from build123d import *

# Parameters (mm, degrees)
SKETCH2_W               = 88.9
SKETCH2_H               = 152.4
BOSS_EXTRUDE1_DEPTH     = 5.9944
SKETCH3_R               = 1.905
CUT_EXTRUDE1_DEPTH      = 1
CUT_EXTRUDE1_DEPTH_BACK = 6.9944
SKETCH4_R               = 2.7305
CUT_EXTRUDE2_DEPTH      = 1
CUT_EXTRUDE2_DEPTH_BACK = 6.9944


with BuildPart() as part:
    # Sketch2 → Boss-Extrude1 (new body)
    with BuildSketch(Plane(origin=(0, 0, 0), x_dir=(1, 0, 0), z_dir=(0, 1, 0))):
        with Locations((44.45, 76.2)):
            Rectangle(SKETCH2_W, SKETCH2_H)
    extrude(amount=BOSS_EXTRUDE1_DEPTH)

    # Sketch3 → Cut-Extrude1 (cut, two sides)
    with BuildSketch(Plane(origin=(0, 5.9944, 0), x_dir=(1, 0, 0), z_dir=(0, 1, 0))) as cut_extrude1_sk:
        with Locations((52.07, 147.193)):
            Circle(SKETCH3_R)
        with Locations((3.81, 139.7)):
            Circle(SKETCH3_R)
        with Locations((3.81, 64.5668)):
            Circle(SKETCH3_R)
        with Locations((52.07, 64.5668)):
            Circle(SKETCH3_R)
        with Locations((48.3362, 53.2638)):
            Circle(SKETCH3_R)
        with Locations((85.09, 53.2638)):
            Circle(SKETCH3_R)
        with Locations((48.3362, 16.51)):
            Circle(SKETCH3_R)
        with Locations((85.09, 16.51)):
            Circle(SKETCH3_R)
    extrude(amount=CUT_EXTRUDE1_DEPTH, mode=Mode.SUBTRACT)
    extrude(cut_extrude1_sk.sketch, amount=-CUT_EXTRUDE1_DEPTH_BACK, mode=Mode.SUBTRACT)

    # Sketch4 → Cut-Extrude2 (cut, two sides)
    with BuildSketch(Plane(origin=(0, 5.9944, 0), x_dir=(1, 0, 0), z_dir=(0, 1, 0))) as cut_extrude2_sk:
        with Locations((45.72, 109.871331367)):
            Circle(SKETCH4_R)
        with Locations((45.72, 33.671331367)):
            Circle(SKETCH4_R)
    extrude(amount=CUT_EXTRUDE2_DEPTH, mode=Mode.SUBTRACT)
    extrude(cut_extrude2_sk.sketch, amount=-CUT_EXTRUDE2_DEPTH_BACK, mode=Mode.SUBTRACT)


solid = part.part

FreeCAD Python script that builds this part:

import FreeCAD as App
import Part
import Sketcher
Q = App.Units.Quantity


def add_polygon(sketch, points):
    """Adds a closed chain of lines whose ends are joined by coincident constraints."""
    first, n = sketch.GeometryCount, len(points)
    for a, b in zip(points, points[1:] + points[:1]):
        sketch.addGeometry(Part.LineSegment(App.Vector(*a, 0), App.Vector(*b, 0)), False)
    for i in range(n):
        sketch.addConstraint(Sketcher.Constraint("Coincident", first + i, 2, first + (i + 1) % n, 1))

doc = App.newDocument("Part")
body = doc.addObject("PartDesign::Body", "Body")

sketch1 = body.newObject("Sketcher::SketchObject", "Sketch")
sketch1.AttachmentSupport = (doc.getObject("XZ_Plane"), [""])
sketch1.MapMode = "FlatFace"
add_polygon(sketch1, [(0, -152), (0, 0), (89, 0), (89, -152)])
sketch1.addConstraint([
    Sketcher.Constraint("Vertical", 0),
    Sketcher.Constraint("Horizontal", 1),
    Sketcher.Constraint("Vertical", 2),
    Sketcher.Constraint("Horizontal", 3),
    Sketcher.Constraint("Coincident", 0, 2, -1, 1),
    Sketcher.Constraint("DistanceY", 0, 1, 0, 2, Q("6 in")),
    Sketcher.Constraint("DistanceX", 1, 1, 1, 2, Q("3.5 in")),
])
pad1 = body.newObject("PartDesign::Pad", "Pad")
pad1.Profile = sketch1
pad1.Length = Q("0.236 in")
pad1.Reversed = True

sketch2 = body.newObject("Sketcher::SketchObject", "Sketch001")
sketch2.AttachmentSupport = (doc.getObject("XZ_Plane"), [""])
sketch2.MapMode = "FlatFace"
sketch2.AttachmentOffset = App.Placement(App.Vector(0, 0, -0.236 * 25.4), App.Rotation())
sketch2.addGeometry([
    Part.Circle(App.Vector(52.1, -147.2, 0), App.Vector(0, 0, 1), 1.9),
    Part.Circle(App.Vector(3.8, -139.7, 0), App.Vector(0, 0, 1), 1.9),
    Part.Circle(App.Vector(3.8, -64.6, 0), App.Vector(0, 0, 1), 1.9),
    Part.Circle(App.Vector(52.1, -64.6, 0), App.Vector(0, 0, 1), 1.9),
    Part.Circle(App.Vector(48.3, -53.3, 0), App.Vector(0, 0, 1), 1.9),
    Part.Circle(App.Vector(85.1, -53.3, 0), App.Vector(0, 0, 1), 1.9),
    Part.Circle(App.Vector(48.3, -16.5, 0), App.Vector(0, 0, 1), 1.9),
    Part.Circle(App.Vector(85.1, -16.5, 0), App.Vector(0, 0, 1), 1.9),
], False)
sketch2.addConstraint([
    Sketcher.Constraint("Equal", 0, 1),
    Sketcher.Constraint("Equal", 1, 2),
    Sketcher.Constraint("Equal", 2, 3),
    Sketcher.Constraint("Equal", 3, 4),
    Sketcher.Constraint("Equal", 4, 5),
    Sketcher.Constraint("Equal", 5, 6),
    Sketcher.Constraint("Equal", 6, 7),
    Sketcher.Constraint("Horizontal", 2, 3, 3, 3),
    Sketcher.Constraint("Horizontal", 4, 3, 5, 3),
    Sketcher.Constraint("Horizontal", 6, 3, 7, 3),
    Sketcher.Constraint("Vertical", 1, 3, 2, 3),
    Sketcher.Constraint("Vertical", 0, 3, 3, 3),
    Sketcher.Constraint("Vertical", 4, 3, 6, 3),
    Sketcher.Constraint("Vertical", 5, 3, 7, 3),
    Sketcher.Constraint("Diameter", 0, Q("0.15 in")),
    Sketcher.Constraint("DistanceY", 1, 3, -1, 1, Q("5.5 in")),
    Sketcher.Constraint("DistanceX", 1, 3, 0, 3, Q("1.9 in")),
    Sketcher.Constraint("DistanceX", 3, 3, 5, 3, Q("1.3 in")),
    Sketcher.Constraint("DistanceX", -1, 1, 0, 3, Q("2.05 in")),
    Sketcher.Constraint("DistanceY", 6, 3, -1, 1, Q("0.65 in")),
    Sketcher.Constraint("DistanceY", 0, 3, -1, 1, Q("5.795 in")),
    Sketcher.Constraint("DistanceY", 2, 3, -1, 1, Q("2.542 in")),
    Sketcher.Constraint("DistanceX", -1, 1, 4, 3, Q("1.903 in")),
    Sketcher.Constraint("DistanceY", 4, 3, -1, 1, Q("2.097 in")),
])
pocket1 = body.newObject("PartDesign::Pocket", "Pocket")
pocket1.Profile = sketch2
pocket1.Type = "ThroughAll"
pocket1.Midplane = True

sketch3 = body.newObject("Sketcher::SketchObject", "Sketch002")
sketch3.AttachmentSupport = (doc.getObject("XZ_Plane"), [""])
sketch3.MapMode = "FlatFace"
sketch3.AttachmentOffset = App.Placement(App.Vector(0, 0, -0.236 * 25.4), App.Rotation())
sketch3.addGeometry([
    Part.Circle(App.Vector(45.7, -109.9, 0), App.Vector(0, 0, 1), 2.7),
    Part.Circle(App.Vector(45.7, -33.7, 0), App.Vector(0, 0, 1), 2.7),
], False)
sketch3.addConstraint([
    Sketcher.Constraint("Equal", 0, 1),
    Sketcher.Constraint("Vertical", 0, 3, 1, 3),
    Sketcher.Constraint("Diameter", 0, Q("0.215 in")),
    Sketcher.Constraint("DistanceY", 0, 3, 1, 3, Q("3 in")),
    Sketcher.Constraint("DistanceX", -1, 1, 0, 3, Q("1.8 in")),
    Sketcher.Constraint("DistanceY", 0, 3, -1, 1, Q("109.871331 mm")),
])
pocket2 = body.newObject("PartDesign::Pocket", "Pocket001")
pocket2.Profile = sketch3
pocket2.Type = "ThroughAll"
pocket2.Midplane = True

doc.recompute()
